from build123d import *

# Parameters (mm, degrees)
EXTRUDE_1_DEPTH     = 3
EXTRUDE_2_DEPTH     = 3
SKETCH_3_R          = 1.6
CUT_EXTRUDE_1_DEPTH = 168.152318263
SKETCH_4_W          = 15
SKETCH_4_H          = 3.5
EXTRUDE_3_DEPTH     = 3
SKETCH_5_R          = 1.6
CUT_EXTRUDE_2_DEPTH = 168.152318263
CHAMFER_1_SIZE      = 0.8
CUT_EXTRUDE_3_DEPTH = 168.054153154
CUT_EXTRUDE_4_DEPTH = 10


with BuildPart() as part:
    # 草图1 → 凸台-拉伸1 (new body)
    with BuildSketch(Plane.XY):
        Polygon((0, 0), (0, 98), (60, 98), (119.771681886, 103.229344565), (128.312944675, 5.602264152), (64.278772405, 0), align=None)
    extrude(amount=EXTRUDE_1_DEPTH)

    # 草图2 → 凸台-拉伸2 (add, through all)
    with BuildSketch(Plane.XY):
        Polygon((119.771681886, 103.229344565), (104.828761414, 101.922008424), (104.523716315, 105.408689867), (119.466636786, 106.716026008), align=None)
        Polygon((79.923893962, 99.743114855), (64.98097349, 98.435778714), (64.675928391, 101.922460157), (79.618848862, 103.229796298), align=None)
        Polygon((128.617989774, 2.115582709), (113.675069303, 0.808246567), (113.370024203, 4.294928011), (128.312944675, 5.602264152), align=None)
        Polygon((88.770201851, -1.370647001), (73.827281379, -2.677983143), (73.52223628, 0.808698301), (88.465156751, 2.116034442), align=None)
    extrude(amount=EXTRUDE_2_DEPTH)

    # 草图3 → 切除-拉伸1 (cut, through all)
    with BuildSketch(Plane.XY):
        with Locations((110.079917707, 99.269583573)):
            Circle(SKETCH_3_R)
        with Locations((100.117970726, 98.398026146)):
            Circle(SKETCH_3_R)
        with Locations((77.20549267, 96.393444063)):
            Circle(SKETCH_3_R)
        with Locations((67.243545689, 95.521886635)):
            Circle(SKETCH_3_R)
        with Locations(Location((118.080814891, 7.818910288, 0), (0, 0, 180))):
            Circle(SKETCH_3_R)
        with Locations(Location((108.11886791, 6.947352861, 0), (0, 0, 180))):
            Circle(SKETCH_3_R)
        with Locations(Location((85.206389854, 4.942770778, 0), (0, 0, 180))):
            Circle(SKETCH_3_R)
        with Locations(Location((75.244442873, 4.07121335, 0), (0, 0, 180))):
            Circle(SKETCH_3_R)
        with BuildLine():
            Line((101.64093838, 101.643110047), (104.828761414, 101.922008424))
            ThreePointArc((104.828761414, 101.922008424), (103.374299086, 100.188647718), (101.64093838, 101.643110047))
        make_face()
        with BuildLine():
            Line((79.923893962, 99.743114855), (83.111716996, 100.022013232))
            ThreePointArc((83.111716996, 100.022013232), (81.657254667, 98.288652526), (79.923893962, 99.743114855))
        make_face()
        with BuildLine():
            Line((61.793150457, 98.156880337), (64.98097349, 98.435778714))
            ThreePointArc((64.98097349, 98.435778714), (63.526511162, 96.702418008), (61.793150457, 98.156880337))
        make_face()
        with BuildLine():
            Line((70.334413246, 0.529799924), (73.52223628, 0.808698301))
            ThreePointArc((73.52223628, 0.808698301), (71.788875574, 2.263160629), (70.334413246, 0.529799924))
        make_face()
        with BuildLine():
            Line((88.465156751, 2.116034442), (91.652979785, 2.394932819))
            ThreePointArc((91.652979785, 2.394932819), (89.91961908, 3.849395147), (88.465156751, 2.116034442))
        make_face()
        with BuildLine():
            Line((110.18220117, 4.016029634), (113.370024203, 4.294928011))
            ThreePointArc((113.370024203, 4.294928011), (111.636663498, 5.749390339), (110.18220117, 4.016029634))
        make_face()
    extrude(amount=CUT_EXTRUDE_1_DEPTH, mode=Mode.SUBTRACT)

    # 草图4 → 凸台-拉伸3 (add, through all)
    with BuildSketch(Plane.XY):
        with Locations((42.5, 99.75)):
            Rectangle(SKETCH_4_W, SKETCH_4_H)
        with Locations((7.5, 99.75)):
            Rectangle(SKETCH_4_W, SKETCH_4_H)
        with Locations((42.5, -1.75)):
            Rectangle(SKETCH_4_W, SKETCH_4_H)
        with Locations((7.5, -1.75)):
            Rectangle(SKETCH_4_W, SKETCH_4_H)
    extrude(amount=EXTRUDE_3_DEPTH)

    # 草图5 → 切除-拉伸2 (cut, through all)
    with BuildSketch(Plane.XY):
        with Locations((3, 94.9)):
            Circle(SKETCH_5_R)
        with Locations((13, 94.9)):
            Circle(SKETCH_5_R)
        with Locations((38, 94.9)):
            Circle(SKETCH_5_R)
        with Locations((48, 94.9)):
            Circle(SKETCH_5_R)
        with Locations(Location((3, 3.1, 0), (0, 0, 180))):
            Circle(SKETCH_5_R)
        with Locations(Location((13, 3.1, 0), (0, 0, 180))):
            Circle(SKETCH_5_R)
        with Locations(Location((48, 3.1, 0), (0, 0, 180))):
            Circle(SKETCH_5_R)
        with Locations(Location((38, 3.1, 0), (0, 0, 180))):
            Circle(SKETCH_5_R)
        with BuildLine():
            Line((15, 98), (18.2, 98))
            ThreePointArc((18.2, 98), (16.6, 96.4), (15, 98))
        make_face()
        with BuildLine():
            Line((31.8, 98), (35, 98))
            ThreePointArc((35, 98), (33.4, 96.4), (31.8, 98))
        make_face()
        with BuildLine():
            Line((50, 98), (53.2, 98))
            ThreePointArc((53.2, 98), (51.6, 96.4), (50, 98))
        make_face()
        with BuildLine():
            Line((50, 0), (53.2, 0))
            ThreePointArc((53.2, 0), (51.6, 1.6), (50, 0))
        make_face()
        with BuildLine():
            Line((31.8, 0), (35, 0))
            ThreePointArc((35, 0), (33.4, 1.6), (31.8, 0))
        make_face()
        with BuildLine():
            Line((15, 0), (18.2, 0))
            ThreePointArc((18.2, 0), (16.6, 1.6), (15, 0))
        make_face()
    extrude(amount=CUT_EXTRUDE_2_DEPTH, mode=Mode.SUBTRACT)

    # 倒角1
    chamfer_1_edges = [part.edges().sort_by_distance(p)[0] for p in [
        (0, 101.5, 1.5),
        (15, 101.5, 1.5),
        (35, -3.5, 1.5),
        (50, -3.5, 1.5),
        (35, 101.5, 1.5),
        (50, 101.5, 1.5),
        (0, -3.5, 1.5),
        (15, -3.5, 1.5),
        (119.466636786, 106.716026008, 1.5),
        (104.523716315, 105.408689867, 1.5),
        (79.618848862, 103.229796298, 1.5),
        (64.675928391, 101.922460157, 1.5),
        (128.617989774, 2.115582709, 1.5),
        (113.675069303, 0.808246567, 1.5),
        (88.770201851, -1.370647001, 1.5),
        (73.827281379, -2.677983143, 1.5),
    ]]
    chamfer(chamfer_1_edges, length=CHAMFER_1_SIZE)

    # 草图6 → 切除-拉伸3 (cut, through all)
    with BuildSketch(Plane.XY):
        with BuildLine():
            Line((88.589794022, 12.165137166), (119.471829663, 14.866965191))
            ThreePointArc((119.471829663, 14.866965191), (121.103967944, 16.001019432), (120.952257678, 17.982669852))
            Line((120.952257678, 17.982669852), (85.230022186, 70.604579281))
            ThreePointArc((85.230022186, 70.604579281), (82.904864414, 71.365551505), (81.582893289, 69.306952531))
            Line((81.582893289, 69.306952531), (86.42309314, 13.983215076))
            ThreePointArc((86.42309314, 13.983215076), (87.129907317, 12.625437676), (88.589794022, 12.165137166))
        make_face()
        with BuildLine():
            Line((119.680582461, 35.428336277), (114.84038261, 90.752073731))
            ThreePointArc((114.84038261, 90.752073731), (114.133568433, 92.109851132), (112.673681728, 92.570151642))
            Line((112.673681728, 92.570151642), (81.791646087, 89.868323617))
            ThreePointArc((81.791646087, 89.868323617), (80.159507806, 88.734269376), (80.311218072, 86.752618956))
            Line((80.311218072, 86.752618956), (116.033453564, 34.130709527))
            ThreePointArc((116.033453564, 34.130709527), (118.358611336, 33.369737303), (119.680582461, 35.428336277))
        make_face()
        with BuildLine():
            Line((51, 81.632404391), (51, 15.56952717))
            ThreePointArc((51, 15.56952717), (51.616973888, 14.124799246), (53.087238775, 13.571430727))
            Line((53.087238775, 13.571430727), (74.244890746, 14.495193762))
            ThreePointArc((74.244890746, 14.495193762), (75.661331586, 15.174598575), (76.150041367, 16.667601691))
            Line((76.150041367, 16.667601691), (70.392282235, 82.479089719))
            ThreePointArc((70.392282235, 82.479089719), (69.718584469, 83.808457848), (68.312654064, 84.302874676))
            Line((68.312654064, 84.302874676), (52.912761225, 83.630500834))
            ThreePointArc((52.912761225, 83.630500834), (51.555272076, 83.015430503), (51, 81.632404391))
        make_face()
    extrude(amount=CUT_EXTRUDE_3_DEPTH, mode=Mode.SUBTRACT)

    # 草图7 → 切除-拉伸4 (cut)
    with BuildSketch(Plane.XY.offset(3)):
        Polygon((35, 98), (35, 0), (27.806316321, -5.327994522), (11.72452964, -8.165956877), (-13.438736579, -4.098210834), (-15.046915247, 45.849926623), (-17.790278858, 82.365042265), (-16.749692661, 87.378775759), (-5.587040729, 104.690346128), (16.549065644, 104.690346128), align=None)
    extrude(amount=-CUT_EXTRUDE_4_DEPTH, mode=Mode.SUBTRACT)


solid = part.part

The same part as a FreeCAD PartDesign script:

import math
import FreeCAD as App
import Part
import Sketcher

V = App.Vector
Q = App.Units.Quantity


def edges_at(feature, points):
    """Names of the edges that pass closest to the given points."""
    edges = feature.Shape.Edges
    near = lambda p: min(range(len(edges)), key=lambda i: edges[i].distToShape(Part.Vertex(*p))[0])
    return sorted({f"Edge{near(p) + 1}" for p in points})

doc = App.newDocument("Part")
body = doc.addObject("PartDesign::Body", "Body")

# Sketch on XY plane
sketch1 = body.newObject("Sketcher::SketchObject", "Sketch")
sketch1.AttachmentSupport = (doc.getObject("XY_Plane"), [""])
sketch1.MapMode = "FlatFace"
sketch1.addGeometry([
    Part.LineSegment(V(0, 98, 0), V(0, 0, 0)),  # 0
    Part.LineSegment(V(0, 0, 0), V(64, 0, 0)),  # 1
    Part.LineSegment(V(64, 0, 0), V(128, 6, 0)),  # 2
    Part.LineSegment(V(128, 6, 0), V(120, 103, 0)),  # 3
    Part.LineSegment(V(120, 103, 0), V(60, 98, 0)),  # 4
    Part.LineSegment(V(60, 98, 0), V(0, 98, 0)),  # 5
], False)
sketch1.addConstraint([
    Sketcher.Constraint("Coincident", 0, 2, 1, 1),
    Sketcher.Constraint("Coincident", 1, 2, 2, 1),
    Sketcher.Constraint("Coincident", 2, 2, 3, 1),
    Sketcher.Constraint("Coincident", 3, 2, 4, 1),
    Sketcher.Constraint("Coincident", 4, 2, 5, 1),
    Sketcher.Constraint("Coincident", 5, 2, 0, 1),
    Sketcher.Constraint("Vertical", 0),
    Sketcher.Constraint("Horizontal", 1),
    Sketcher.Constraint("Horizontal", 5),
    Sketcher.Constraint("Coincident", 0, 2, -1, 1),
    Sketcher.Constraint("Perpendicular", 2, 3),
    Sketcher.Constraint("Perpendicular", 3, 4),
    Sketcher.Constraint("DistanceX", 5, 2, 5, 1, 60.0),
    Sketcher.Constraint("DistanceY", 0, 2, 0, 1, 98.0),
    Sketcher.Constraint("Angle", 2, Q("5 deg")),
    Sketcher.Constraint("Distance", 3, 98.0),
    Sketcher.Constraint("Distance", 4, 60.0),
])
pad1 = body.newObject("PartDesign::Pad", "Pad")
pad1.Profile = sketch1
pad1.Length = 3

# Sketch on XY plane
sketch2 = body.newObject("Sketcher::SketchObject", "Sketch001")
sketch2.AttachmentSupport = (doc.getObject("XY_Plane"), [""])
sketch2.MapMode = "FlatFace"
sketch2.addGeometry([
    Part.LineSegment(V(104.8, 101.9, 0), V(119.8, 103.2, 0)),  # 0
    Part.LineSegment(V(119.8, 103.2, 0), V(119.5, 106.7, 0)),  # 1
    Part.LineSegment(V(119.5, 106.7, 0), V(104.5, 105.4, 0)),  # 2
    Part.LineSegment(V(104.5, 105.4, 0), V(104.8, 101.9, 0)),  # 3
    Part.LineSegment(V(65, 98.4, 0), V(79.9, 99.7, 0)),  # 4
    Part.LineSegment(V(79.9, 99.7, 0), V(79.6, 103.2, 0)),  # 5
    Part.LineSegment(V(79.6, 103.2, 0), V(64.7, 101.9, 0)),  # 6
    Part.LineSegment(V(64.7, 101.9, 0), V(65, 98.4, 0)),  # 7
    Part.LineSegment(V(113.7, 0.8, 0), V(128.6, 2.1, 0)),  # 8
    Part.LineSegment(V(128.6, 2.1, 0), V(128.3, 5.6, 0)),  # 9
    Part.LineSegment(V(128.3, 5.6, 0), V(113.4, 4.3, 0)),  # 10
    Part.LineSegment(V(113.4, 4.3, 0), V(113.7, 0.8, 0)),  # 11
    Part.LineSegment(V(73.8, -2.7, 0), V(88.8, -1.4, 0)),  # 12
    Part.LineSegment(V(88.8, -1.4, 0), V(88.5, 2.1, 0)),  # 13
    Part.LineSegment(V(88.5, 2.1, 0), V(73.5, 0.8, 0)),  # 14
    Part.LineSegment(V(73.5, 0.8, 0), V(73.8, -2.7, 0)),  # 15
], False)
sketch2.addConstraint([
    Sketcher.Constraint("Coincident", 0, 2, 1, 1),
    Sketcher.Constraint("Coincident", 1, 2, 2, 1),
    Sketcher.Constraint("Coincident", 2, 2, 3, 1),
    Sketcher.Constraint("Coincident", 3, 2, 0, 1),
    Sketcher.Constraint("Coincident", 4, 2, 5, 1),
    Sketcher.Constraint("Coincident", 5, 2, 6, 1),
    Sketcher.Constraint("Coincident", 6, 2, 7, 1),
    Sketcher.Constraint("Coincident", 7, 2, 4, 1),
    Sketcher.Constraint("Coincident", 8, 2, 9, 1),
    Sketcher.Constraint("Coincident", 9, 2, 10, 1),
    Sketcher.Constraint("Coincident", 10, 2, 11, 1),
    Sketcher.Constraint("Coincident", 11, 2, 8, 1),
    Sketcher.Constraint("Coincident", 12, 2, 13, 1),
    Sketcher.Constraint("Coincident", 13, 2, 14, 1),
    Sketcher.Constraint("Coincident", 14, 2, 15, 1),
    Sketcher.Constraint("Coincident", 15, 2, 12, 1),
    Sketcher.Constraint("Perpendicular", 0, 1),
    Sketcher.Constraint("Perpendicular", 1, 2),
    Sketcher.Constraint("Perpendicular", 2, 3),
    Sketcher.Constraint("Perpendicular", 3, 4),
    Sketcher.Constraint("Perpendicular", 4, 5),
    Sketcher.Constraint("Perpendicular", 5, 6),
    Sketcher.Constraint("Perpendicular", 6, 7),
    Sketcher.Constraint("Perpendicular", 7, 8),
    Sketcher.Constraint("Perpendicular", 8, 9),
    Sketcher.Constraint("Perpendicular", 9, 10),
    Sketcher.Constraint("Perpendicular", 10, 11),
    Sketcher.Constraint("Perpendicular", 11, 12),
    Sketcher.Constraint("Perpendicular", 12, 13),
    Sketcher.Constraint("Perpendicular", 13, 14),
    Sketcher.Constraint("Perpendicular", 14, 15),
    Sketcher.Constraint("Equal", 2, 4),
    Sketcher.Constraint("Equal", 3, 5),
    Sketcher.Constraint("Equal", 6, 8),
    Sketcher.Constraint("Equal", 7, 9),
    Sketcher.Constraint("Equal", 10, 12),
    Sketcher.Constraint("Equal", 11, 13),
    Sketcher.Constraint("Angle", 0, Q("5 deg")),
    Sketcher.Constraint("Distance", 0, 15.0),
    Sketcher.Constraint("Distance", 1, 3.5),
    Sketcher.Constraint("DistanceX", -1, 1, 12, 2, 88.770202),
    Sketcher.Constraint("DistanceY", -1, 1, 14, 2, 0.808698),
    Sketcher.Constraint("DistanceX", -1, 1, 0, 2, 119.771682),
    Sketcher.Constraint("DistanceY", -1, 1, 2, 2, 105.40869),
    Sketcher.Constraint("DistanceX", -1, 1, 5, 2, 79.618849),
    Sketcher.Constraint("DistanceY", -1, 1, 6, 2, 101.92246),
    Sketcher.Constraint("DistanceX", -1, 1, 8, 2, 128.61799),
    Sketcher.Constraint("DistanceY", -1, 1, 10, 2, 4.294928),
])
pad2 = body.newObject("PartDesign::Pad", "Pad001")
pad2.Profile = sketch2
pad2.Type = "UpToLast"

# Sketch on XY plane
sketch3 = body.newObject("Sketcher::SketchObject", "Sketch002")
sketch3.AttachmentSupport = (doc.getObject("XY_Plane"), [""])
sketch3.MapMode = "FlatFace"
sketch3.addGeometry([
    Part.Circle(V(110.1, 99.3, 0), V(0, 0, 1), 1.6),  # 0
    Part.Circle(V(100.1, 98.4, 0), V(0, 0, 1), 1.6),  # 1
    Part.Circle(V(77.2, 96.4, 0), V(0, 0, 1), 1.6),  # 2
    Part.Circle(V(67.2, 95.5, 0), V(0, 0, 1), 1.6),  # 3
    Part.Circle(V(118.1, 7.8, 0), V(0, 0, 1), 1.6),  # 4
    Part.Circle(V(108.1, 6.9, 0), V(0, 0, 1), 1.6),  # 5
    Part.Circle(V(85.2, 4.9, 0), V(0, 0, 1), 1.6),  # 6
    Part.Circle(V(75.2, 4.1, 0), V(0, 0, 1), 1.6),  # 7
    Part.LineSegment(V(104.8, 101.9, 0), V(101.6, 101.6, 0)),  # 8
    Part.ArcOfCircle(Part.Circle(V(103.2, 101.8, 0), V(0, 0, 1), 1.6), math.radians(-175), math.radians(5)),  # 9
    Part.LineSegment(V(83.1, 100, 0), V(79.9, 99.7, 0)),  # 10
    Part.ArcOfCircle(Part.Circle(V(81.5, 99.9, 0), V(0, 0, 1), 1.6), math.radians(-175), math.radians(5)),  # 11
    Part.LineSegment(V(65, 98.4, 0), V(61.8, 98.2, 0)),  # 12
    Part.ArcOfCircle(Part.Circle(V(63.4, 98.3, 0), V(0, 0, 1), 1.6), math.radians(-175), math.radians(5)),  # 13
    Part.LineSegment(V(70.3, 0.5, 0), V(73.5, 0.8, 0)),  # 14
    Part.ArcOfCircle(Part.Circle(V(71.9, 0.7, 0), V(0, 0, 1), 1.6), math.radians(5), math.radians(185)),  # 15
    Part.LineSegment(V(88.5, 2.1, 0), V(91.7, 2.4, 0)),  # 16
    Part.ArcOfCircle(Part.Circle(V(90.1, 2.3, 0), V(0, 0, 1), 1.6), math.radians(5), math.radians(185)),  # 17
    Part.LineSegment(V(110.2, 4, 0), V(113.4, 4.3, 0)),  # 18
    Part.ArcOfCircle(Part.Circle(V(111.8, 4.2, 0), V(0, 0, 1), 1.6), math.radians(5), math.radians(185)),  # 19
], False)
sketch3.addConstraint([
    Sketcher.Constraint("Coincident", 8, 1, 9, 2),
    Sketcher.Constraint("Coincident", 9, 1, 8, 2),
    Sketcher.Constraint("Coincident", 10, 1, 11, 2),
    Sketcher.Constraint("Coincident", 11, 1, 10, 2),
    Sketcher.Constraint("Coincident", 12, 1, 13, 2),
    Sketcher.Constraint("Coincident", 13, 1, 12, 2),
    Sketcher.Constraint("Coincident", 14, 1, 15, 2),
    Sketcher.Constraint("Coincident", 15, 1, 14, 2),
    Sketcher.Constraint("Coincident", 16, 1, 17, 2),
    Sketcher.Constraint("Coincident", 17, 1, 16, 2),
    Sketcher.Constraint("Coincident", 18, 1, 19, 2),
    Sketcher.Constraint("Coincident", 19, 1, 18, 2),
    Sketcher.Constraint("Equal", 0, 1),
    Sketcher.Constraint("Equal", 1, 2),
    Sketcher.Constraint("Equal", 2, 3),
    Sketcher.Constraint("Equal", 3, 4),
    Sketcher.Constraint("Equal", 4, 5),
    Sketcher.Constraint("Equal", 5, 6),
    Sketcher.Constraint("Equal", 6, 7),
    Sketcher.Constraint("Equal", 7, 9),
    Sketcher.Constraint("Equal", 9, 11),
    Sketcher.Constraint("Equal", 11, 13),
    Sketcher.Constraint("Equal", 13, 15),
    Sketcher.Constraint("Equal", 15, 17),
    Sketcher.Constraint("Equal", 17, 19),
    Sketcher.Constraint("Parallel", 8, 10),
    Sketcher.Constraint("Parallel", 10, 12),
    Sketcher.Constraint("Parallel", 12, 14),
    Sketcher.Constraint("Parallel", 14, 16),
    Sketcher.Constraint("Parallel", 16, 18),
    Sketcher.Constraint("Diameter", 0, 3.2),
    Sketcher.Constraint("Angle", 8, Q("-175 deg")),
    Sketcher.Constraint("DistanceY", -1, 1, 14, 1, 0.5298),
    Sketcher.Constraint("DistanceX", -1, 1, 18, 1, 110.182201),
    Sketcher.Constraint("DistanceX", 17, 3, 5, 3, 18.0598),
    Sketcher.Constraint("DistanceX", 2, 3, 11, 1, 2.718401),
    Sketcher.Constraint("DistanceX", -1, 1, 1, 3, 100.117971),
    Sketcher.Constraint("DistanceY", -1, 1, 4, 3, 7.81891),
    Sketcher.Constraint("DistanceX", -1, 1, 6, 3, 85.20639),
    Sketcher.Constraint("DistanceY", -1, 1, 6, 3, 4.942771),
    Sketcher.Constraint("DistanceX", -1, 1, 9, 3, 103.23485),
    Sketcher.Constraint("DistanceY", -1, 1, 9, 3, 101.782559),
    Sketcher.Constraint("DistanceX", -1, 1, 13, 3, 63.387062),
    Sketcher.Constraint("DistanceY", -1, 1, 13, 3, 98.29633),
    Sketcher.Constraint("DistanceY", -1, 1, 15, 3, 0.669249),
    Sketcher.Constraint("DistanceX", -1, 1, 17, 3, 90.059068),
    Sketcher.Constraint("DistanceY", -1, 1, 19, 3, 4.155479),
    Sketcher.Constraint("DistanceX", -1, 1, 8, 1, 104.828761),
    Sketcher.Constraint("DistanceY", -1, 1, 12, 1, 98.435779),
    Sketcher.Constraint("DistanceX", -1, 1, 17, 1, 91.65298),
    Sketcher.Constraint("DistanceY", -1, 1, 18, 1, 4.01603),
    Sketcher.Constraint("DistanceX", 2, 3, 1, 3, 22.912478),
    Sketcher.Constraint("DistanceY", 2, 3, 0, 3, 2.87614),
    Sketcher.Constraint("DistanceY", 3, 3, 1, 3, 2.87614),
    Sketcher.Constraint("DistanceX", 3, 3, 4, 3, 50.837269),
    Sketcher.Constraint("DistanceX", 5, 3, 0, 3, 1.96105),
    Sketcher.Constraint("DistanceY", 5, 3, 0, 3, 92.322231),
    Sketcher.Constraint("DistanceY", 7, 3, 5, 3, 2.87614),
    Sketcher.Constraint("DistanceX", 7, 3, 2, 3, 1.96105),
    Sketcher.Constraint("DistanceY", 2, 3, 11, 3, 3.48912),
    Sketcher.Constraint("DistanceX", 3, 3, 11, 3, 14.27426),
    Sketcher.Constraint("DistanceX", 15, 3, 7, 3, 3.316118),
    Sketcher.Constraint("DistanceX", 15, 3, 4, 3, 46.15249),
    Sketcher.Constraint("DistanceY", 17, 3, 7, 3, 1.81573),
    Sketcher.Constraint("DistanceY", 3, 3, 11, 1, 4.221228),
    Sketcher.Constraint("DistanceY", -1, 1, 0, 3, 99.269584),
])
pocket1 = body.newObject("PartDesign::Pocket", "Pocket")
pocket1.Profile = sketch3
pocket1.Type = "ThroughAll"
pocket1.Reversed = True

# Sketch on XY plane
sketch4 = body.newObject("Sketcher::SketchObject", "Sketch003")
sketch4.AttachmentSupport = (doc.getObject("XY_Plane"), [""])
sketch4.MapMode = "FlatFace"
sketch4.addGeometry([
    Part.LineSegment(V(35, 101.5, 0), V(35, 98, 0)),  # 0
    Part.LineSegment(V(35, 98, 0), V(50, 98, 0)),  # 1
    Part.LineSegment(V(50, 98, 0), V(50, 101.5, 0)),  # 2
    Part.LineSegment(V(50, 101.5, 0), V(35, 101.5, 0)),  # 3
    Part.LineSegment(V(0, 101.5, 0), V(0, 98, 0)),  # 4
    Part.LineSegment(V(0, 98, 0), V(15, 98, 0)),  # 5
    Part.LineSegment(V(15, 98, 0), V(15, 101.5, 0)),  # 6
    Part.LineSegment(V(15, 101.5, 0), V(0, 101.5, 0)),  # 7
    Part.LineSegment(V(35, 0, 0), V(35, -3.5, 0)),  # 8
    Part.LineSegment(V(35, -3.5, 0), V(50, -3.5, 0)),  # 9
    Part.LineSegment(V(50, -3.5, 0), V(50, 0, 0)),  # 10
    Part.LineSegment(V(50, 0, 0), V(35, 0, 0)),  # 11
    Part.LineSegment(V(0, 0, 0), V(0, -3.5, 0)),  # 12
    Part.LineSegment(V(0, -3.5, 0), V(15, -3.5, 0)),  # 13
    Part.LineSegment(V(15, -3.5, 0), V(15, 0, 0)),  # 14
    Part.LineSegment(V(15, 0, 0), V(0, 0, 0)),  # 15
], False)
sketch4.addConstraint([
    Sketcher.Constraint("Coincident", 0, 2, 1, 1),
    Sketcher.Constraint("Coincident", 1, 2, 2, 1),
    Sketcher.Constraint("Coincident", 2, 2, 3, 1),
    Sketcher.Constraint("Coincident", 3, 2, 0, 1),
    Sketcher.Constraint("Coincident", 4, 2, 5, 1),
    Sketcher.Constraint("Coincident", 5, 2, 6, 1),
    Sketcher.Constraint("Coincident", 6, 2, 7, 1),
    Sketcher.Constraint("Coincident", 7, 2, 4, 1),
    Sketcher.Constraint("Coincident", 8, 2, 9, 1),
    Sketcher.Constraint("Coincident", 9, 2, 10, 1),
    Sketcher.Constraint("Coincident", 10, 2, 11, 1),
    Sketcher.Constraint("Coincident", 11, 2, 8, 1),
    Sketcher.Constraint("Coincident", 12, 2, 13, 1),
    Sketcher.Constraint("Coincident", 13, 2, 14, 1),
    Sketcher.Constraint("Coincident", 14, 2, 15, 1),
    Sketcher.Constraint("Coincident", 15, 2, 12, 1),
    Sketcher.Constraint("Vertical", 0),
    Sketcher.Constraint("Horizontal", 1),
    Sketcher.Constraint("Vertical", 2),
    Sketcher.Constraint("Horizontal", 3),
    Sketcher.Constraint("Vertical", 4),
    Sketcher.Constraint("Horizontal", 5),
    Sketcher.Constraint("Vertical", 6),
    Sketcher.Constraint("Horizontal", 7),
    Sketcher.Constraint("Vertical", 8),
    Sketcher.Constraint("Horizontal", 9),
    Sketcher.Constraint("Vertical", 10),
    Sketcher.Constraint("Horizontal", 11),
    Sketcher.Constraint("Vertical", 12),
    Sketcher.Constraint("Horizontal", 13),
    Sketcher.Constraint("Vertical", 14),
    Sketcher.Constraint("Horizontal", 15),
    Sketcher.Constraint("Coincident", 15, 2, -1, 1),
    Sketcher.Constraint("PointOnObject", 4, 2, -2),
    Sketcher.Constraint("PointOnObject", 10, 2, -1),
    Sketcher.Constraint("Horizontal", 1, 2, 4, 2),
    Sketcher.Constraint("Horizontal", 3, 2, 6, 2),
    Sketcher.Constraint("Horizontal", 9, 2, 12, 2),
    Sketcher.Constraint("Vertical", 3, 2, 8, 2),
    Sketcher.Constraint("Vertical", 2, 2, 9, 2),
    Sketcher.Constraint("Vertical", 6, 2, 13, 2),
    Sketcher.Constraint("Equal", 3, 5),
    Sketcher.Constraint("Equal", 6, 8),
    Sketcher.Constraint("DistanceX", 1, 1, 1, 2, 15.0),
    Sketcher.Constraint("DistanceY", 0, 2, 0, 1, 3.5),
    Sketcher.Constraint("DistanceX", -1, 1, 0, 2, 35.0),
    Sketcher.Constraint("DistanceY", -1, 1, 0, 2, 98.0),
])
pad3 = body.newObject("PartDesign::Pad", "Pad002")
pad3.Profile = sketch4
pad3.Type = "UpToLast"

# Sketch on XY plane
sketch5 = body.newObject("Sketcher::SketchObject", "Sketch004")
sketch5.AttachmentSupport = (doc.getObject("XY_Plane"), [""])
sketch5.MapMode = "FlatFace"
sketch5.addGeometry([
    Part.Circle(V(3, 94.9, 0), V(0, 0, 1), 1.6),  # 0
    Part.Circle(V(13, 94.9, 0), V(0, 0, 1), 1.6),  # 1
    Part.Circle(V(38, 94.9, 0), V(0, 0, 1), 1.6),  # 2
    Part.Circle(V(48, 94.9, 0), V(0, 0, 1), 1.6),  # 3
    Part.Circle(V(3, 3.1, 0), V(0, 0, 1), 1.6),  # 4
    Part.Circle(V(13, 3.1, 0), V(0, 0, 1), 1.6),  # 5
    Part.Circle(V(48, 3.1, 0), V(0, 0, 1), 1.6),  # 6
    Part.Circle(V(38, 3.1, 0), V(0, 0, 1), 1.6),  # 7
    Part.LineSegment(V(18.2, 98, 0), V(15, 98, 0)),  # 8
    Part.ArcOfCircle(Part.Circle(V(16.6, 98, 0), V(0, 0, 1), 1.6), math.radians(180), math.radians(360)),  # 9
    Part.LineSegment(V(35, 98, 0), V(31.8, 98, 0)),  # 10
    Part.ArcOfCircle(Part.Circle(V(33.4, 98, 0), V(0, 0, 1), 1.6), math.radians(180), math.radians(360)),  # 11
    Part.LineSegment(V(53.2, 98, 0), V(50, 98, 0)),  # 12
    Part.ArcOfCircle(Part.Circle(V(51.6, 98, 0), V(0, 0, 1), 1.6), math.radians(180), math.radians(360)),  # 13
    Part.LineSegment(V(50, 0, 0), V(53.2, 0, 0)),  # 14
    Part.ArcOfCircle(Part.Circle(V(51.6, 0, 0), V(0, 0, 1), 1.6), math.radians(0), math.radians(180)),  # 15
    Part.LineSegment(V(31.8, 0, 0), V(35, 0, 0)),  # 16
    Part.ArcOfCircle(Part.Circle(V(33.4, 0, 0), V(0, 0, 1), 1.6), math.radians(0), math.radians(180)),  # 17
    Part.LineSegment(V(15, 0, 0), V(18.2, 0, 0)),  # 18
    Part.ArcOfCircle(Part.Circle(V(16.6, 0, 0), V(0, 0, 1), 1.6), math.radians(0), math.radians(180)),  # 19
], False)
sketch5.addConstraint([
    Sketcher.Constraint("Coincident", 8, 1, 9, 2),
    Sketcher.Constraint("Coincident", 9, 1, 8, 2),
    Sketcher.Constraint("Coincident", 10, 1, 11, 2),
    Sketcher.Constraint("Coincident", 11, 1, 10, 2),
    Sketcher.Constraint("Coincident", 12, 1, 13, 2),
    Sketcher.Constraint("Coincident", 13, 1, 12, 2),
    Sketcher.Constraint("Coincident", 14, 1, 15, 2),
    Sketcher.Constraint("Coincident", 15, 1, 14, 2),
    Sketcher.Constraint("Coincident", 16, 1, 17, 2),
    Sketcher.Constraint("Coincident", 17, 1, 16, 2),
    Sketcher.Constraint("Coincident", 18, 1, 19, 2),
    Sketcher.Constraint("Coincident", 19, 1, 18, 2),
    Sketcher.Constraint("Horizontal", 8),
    Sketcher.Constraint("Horizontal", 10),
    Sketcher.Constraint("Horizontal", 12),
    Sketcher.Constraint("Horizontal", 14),
    Sketcher.Constraint("Horizontal", 16),
    Sketcher.Constraint("Horizontal", 18),
    Sketcher.Constraint("Equal", 0, 1),
    Sketcher.Constraint("Equal", 1, 2),
    Sketcher.Constraint("Equal", 2, 3),
    Sketcher.Constraint("Equal", 3, 4),
    Sketcher.Constraint("Equal", 4, 5),
    Sketcher.Constraint("Equal", 5, 6),
    Sketcher.Constraint("Equal", 6, 7),
    Sketcher.Constraint("Equal", 7, 9),
    Sketcher.Constraint("Equal", 9, 11),
    Sketcher.Constraint("Equal", 11, 13),
    Sketcher.Constraint("Equal", 13, 15),
    Sketcher.Constraint("Equal", 15, 17),
    Sketcher.Constraint("Equal", 17, 19),
    Sketcher.Constraint("PointOnObject", 15, 3, -1),
    Sketcher.Constraint("PointOnObject", 17, 3, -1),
    Sketcher.Constraint("PointOnObject", 19, 3, -1),
    Sketcher.Constraint("PointOnObject", 14, 1, -1),
    Sketcher.Constraint("PointOnObject", 16, 1, -1),
    Sketcher.Constraint("PointOnObject", 18, 1, -1),
    Sketcher.Constraint("Horizontal", 0, 3, 1, 3),
    Sketcher.Constraint("Horizontal", 1, 3, 2, 3),
    Sketcher.Constraint("Horizontal", 2, 3, 3, 3),
    Sketcher.Constraint("Horizontal", 4, 3, 5, 3),
    Sketcher.Constraint("Horizontal", 5, 3, 6, 3),
    Sketcher.Constraint("Horizontal", 6, 3, 7, 3),
    Sketcher.Constraint("Horizontal", 9, 3, 11, 3),
    Sketcher.Constraint("Horizontal", 11, 3, 13, 3),
    Sketcher.Constraint("Horizontal", 13, 3, 8, 1),
    Sketcher.Constraint("Horizontal", 9, 1, 10, 1),
    Sketcher.Constraint("Horizontal", 11, 1, 12, 1),
    Sketcher.Constraint("Vertical", 0, 3, 4, 3),
    Sketcher.Constraint("Vertical", 1, 3, 5, 3),
    Sketcher.Constraint("Vertical", 3, 3, 6, 3),
    Sketcher.Constraint("Vertical", 2, 3, 7, 3),
    Sketcher.Constraint("Vertical", 13, 3, 15, 3),
    Sketcher.Constraint("Vertical", 11, 3, 17, 3),
    Sketcher.Constraint("Vertical", 9, 3, 19, 3),
    Sketcher.Constraint("Diameter", 0, 3.2),
    Sketcher.Constraint("DistanceX", -1, 1, 0, 3, 3.0),
    Sketcher.Constraint("DistanceX", -1, 1, 1, 3, 13.0),
    Sketcher.Constraint("DistanceX", -1, 1, 2, 3, 38.0),
    Sketcher.Constraint("DistanceX", -1, 1, 3, 3, 48.0),
    Sketcher.Constraint("DistanceY", -1, 1, 9, 3, 98.0),
    Sketcher.Constraint("DistanceX", -1, 1, 9, 1, 15.0),
    Sketcher.Constraint("DistanceX", -1, 1, 10, 1, 35.0),
    Sketcher.Constraint("DistanceX", -1, 1, 13, 1, 50.0),
    Sketcher.Constraint("DistanceY", -1, 1, 0, 3, 94.9),
    Sketcher.Constraint("DistanceY", -1, 1, 4, 3, 3.1),
])
pocket2 = body.newObject("PartDesign::Pocket", "Pocket001")
pocket2.Profile = sketch5
pocket2.Type = "ThroughAll"
pocket2.Reversed = True
doc.recompute()

chamfer = body.newObject("PartDesign::Chamfer", "Chamfer")
chamfer.Base = (pocket2, edges_at(pocket2, [
    (0, 101.5, 1.5),
    (15, 101.5, 1.5),
    (35, -3.5, 1.5),
    (50, -3.5, 1.5),
    (35, 101.5, 1.5),
    (50, 101.5, 1.5),
    (0, -3.5, 1.5),
    (15, -3.5, 1.5),
    (119.467, 106.716, 1.5),
    (104.524, 105.409, 1.5),
    (79.619, 103.23, 1.5),
    (64.676, 101.922, 1.5),
    (128.618, 2.116, 1.5),
    (113.675, 0.808, 1.5),
    (88.77, -1.371, 1.5),
    (73.827, -2.678, 1.5),
]))
chamfer.Size = 0.8

# Sketch on XY plane
sketch6 = body.newObject("Sketcher::SketchObject", "Sketch005")
sketch6.AttachmentSupport = (doc.getObject("XY_Plane"), [""])
sketch6.MapMode = "FlatFace"
sketch6.addGeometry([
    Part.LineSegment(V(88.6, 12.2, 0), V(119.5, 14.9, 0)),  # 0
    Part.ArcOfCircle(Part.Circle(V(119.3, 16.9, 0), V(0, 0, 1), 2), math.radians(-85), math.radians(34)),  # 1
    Part.LineSegment(V(121, 18, 0), V(85.2, 70.6, 0)),  # 2
    Part.ArcOfCircle(Part.Circle(V(83.6, 69.5, 0), V(0, 0, 1), 2), math.radians(34), math.radians(185)),  # 3
    Part.LineSegment(V(81.6, 69.3, 0), V(86.4, 14, 0)),  # 4
    Part.ArcOfCircle(Part.Circle(V(88.4, 14.2, 0), V(0, 0, 1), 2), math.radians(-175), math.radians(-85)),  # 5
    Part.LineSegment(V(119.7, 35.4, 0), V(114.8, 90.8, 0)),  # 6
    Part.ArcOfCircle(Part.Circle(V(112.8, 90.6, 0), V(0, 0, 1), 2), math.radians(5), math.radians(95)),  # 7
    Part.LineSegment(V(112.7, 92.6, 0), V(81.8, 89.9, 0)),  # 8
    Part.ArcOfCircle(Part.Circle(V(82, 87.9, 0), V(0, 0, 1), 2), math.radians(95), math.radians(214)),  # 9
    Part.LineSegment(V(80.3, 86.8, 0), V(116, 34.1, 0)),  # 10
    Part.ArcOfCircle(Part.Circle(V(117.7, 35.3, 0), V(0, 0, 1), 2), math.radians(-146), math.radians(5)),  # 11
    Part.LineSegment(V(51, 81.6, 0), V(51, 15.6, 0)),  # 12
    Part.ArcOfCircle(Part.Circle(V(53, 15.6, 0), V(0, 0, 1), 2), math.radians(180), math.radians(273)),  # 13
    Part.LineSegment(V(53.1, 13.6, 0), V(74.2, 14.5, 0)),  # 14
    Part.ArcOfCircle(Part.Circle(V(74.2, 16.5, 0), V(0, 0, 1), 2), math.radians(-87), math.radians(5)),  # 15
    Part.LineSegment(V(76.2, 16.7, 0), V(70.4, 82.5, 0)),  # 16
    Part.ArcOfCircle(Part.Circle(V(68.4, 82.3, 0), V(0, 0, 1), 2), math.radians(5), math.radians(93)),  # 17
    Part.LineSegment(V(68.3, 84.3, 0), V(52.9, 83.6, 0)),  # 18
    Part.ArcOfCircle(Part.Circle(V(53, 81.6, 0), V(0, 0, 1), 2), math.radians(92), math.radians(180)),  # 19
], False)
sketch6.addConstraint([
    Sketcher.Constraint("Tangent", 0, 2, 1, 1),
    Sketcher.Constraint("Tangent", 1, 2, 2, 1),
    Sketcher.Constraint("Tangent", 2, 2, 3, 1),
    Sketcher.Constraint("Tangent", 3, 2, 4, 1),
    Sketcher.Constraint("Tangent", 4, 2, 5, 1),
    Sketcher.Constraint("Tangent", 5, 2, 0, 1),
    Sketcher.Constraint("Tangent", 6, 2, 7, 1),
    Sketcher.Constraint("Tangent", 7, 2, 8, 1),
    Sketcher.Constraint("Tangent", 8, 2, 9, 1),
    Sketcher.Constraint("Tangent", 9, 2, 10, 1),
    Sketcher.Constraint("Tangent", 10, 2, 11, 1),
    Sketcher.Constraint("Tangent", 11, 2, 6, 1),
    Sketcher.Constraint("Tangent", 12, 2, 13, 1),
    Sketcher.Constraint("Tangent", 13, 2, 14, 1),
    Sketcher.Constraint("Tangent", 14, 2, 15, 1),
    Sketcher.Constraint("Tangent", 15, 2, 16, 1),
    Sketcher.Constraint("Tangent", 16, 2, 17, 1),
    Sketcher.Constraint("Tangent", 17, 2, 18, 1),
    Sketcher.Constraint("Tangent", 18, 2, 19, 1),
    Sketcher.Constraint("Tangent", 19, 2, 12, 1),
    Sketcher.Constraint("Vertical", 12),
    Sketcher.Constraint("Equal", 1, 3),
    Sketcher.Constraint("Equal", 3, 5),
    Sketcher.Constraint("Equal", 5, 7),
    Sketcher.Constraint("Equal", 7, 9),
    Sketcher.Constraint("Equal", 9, 11),
    Sketcher.Constraint("Equal", 11, 13),
    Sketcher.Constraint("Equal", 13, 15),
    Sketcher.Constraint("Equal", 15, 17),
    Sketcher.Constraint("Equal", 17, 19),
    Sketcher.Constraint("Perpendicular", 0, 4),
    Sketcher.Constraint("Parallel", 4, 6),
    Sketcher.Constraint("Perpendicular", 6, 8),
    Sketcher.Constraint("Parallel", 2, 10),
    Sketcher.Constraint("Perpendicular", 8, 16),
    Sketcher.Constraint("Parallel", 14, 18),
    Sketcher.Constraint("Equal", 4, 6),
    Sketcher.Constraint("Radius", 1, 2.0),
    Sketcher.Constraint("Angle", 0, Q("5 deg")),
    Sketcher.Constraint("Distance", 0, 31.0),
    Sketcher.Constraint("DistanceX", -1, 1, 13, 3, 53.0),
    Sketcher.Constraint("Angle", 14, Q("2.5 deg")),
    Sketcher.Constraint("DistanceY", 5, 3, 13, 3, 1.412001),
    Sketcher.Constraint("DistanceX", 17, 3, 3, 2, 13.183),
    Sketcher.Constraint("DistanceY", -1, 1, 15, 2, 16.667602),
    Sketcher.Constraint("DistanceY", -1, 1, 18, 2, 83.630501),
    Sketcher.Constraint("DistanceX", 3, 3, 5, 3, 4.8402),
    Sketcher.Constraint("DistanceY", 3, 3, 7, 3, 21.096498),
    Sketcher.Constraint("DistanceX", 17, 3, 7, 3, 44.4481),
    Sketcher.Constraint("DistanceY", 2, 2, 17, 3, 11.700199),
])
pocket3 = body.newObject("PartDesign::Pocket", "Pocket002")
pocket3.Profile = sketch6
pocket3.Type = "ThroughAll"
pocket3.Reversed = True

# Sketch on XY plane
sketch7 = body.newObject("Sketcher::SketchObject", "Sketch006")
sketch7.AttachmentSupport = (doc.getObject("XY_Plane"), [""])
sketch7.MapMode = "FlatFace"
sketch7.AttachmentOffset = App.Placement(V(0, 0, 3), App.Rotation())
sketch7.addGeometry([
    Part.LineSegment(V(35, 0, 0), V(35, 98, 0)),  # 0
    Part.LineSegment(V(35, 98, 0), V(17, 105, 0)),  # 1
    Part.LineSegment(V(17, 105, 0), V(-6, 105, 0)),  # 2
    Part.LineSegment(V(-6, 105, 0), V(-17, 87, 0)),  # 3
    Part.LineSegment(V(-17, 87, 0), V(-18, 82, 0)),  # 4
    Part.LineSegment(V(-18, 82, 0), V(-15, 46, 0)),  # 5
    Part.LineSegment(V(-15, 46, 0), V(-13, -4, 0)),  # 6
    Part.LineSegment(V(-13, -4, 0), V(12, -8, 0)),  # 7
    Part.LineSegment(V(12, -8, 0), V(28, -5, 0)),  # 8
    Part.LineSegment(V(28, -5, 0), V(35, 0, 0)),  # 9
], False)
sketch7.addConstraint([
    Sketcher.Constraint("Coincident", 0, 2, 1, 1),
    Sketcher.Constraint("Coincident", 1, 2, 2, 1),
    Sketcher.Constraint("Coincident", 2, 2, 3, 1),
    Sketcher.Constraint("Coincident", 3, 2, 4, 1),
    Sketcher.Constraint("Coincident", 4, 2, 5, 1),
    Sketcher.Constraint("Coincident", 5, 2, 6, 1),
    Sketcher.Constraint("Coincident", 6, 2, 7, 1),
    Sketcher.Constraint("Coincident", 7, 2, 8, 1),
    Sketcher.Constraint("Coincident", 8, 2, 9, 1),
    Sketcher.Constraint("Coincident", 9, 2, 0, 1),
    Sketcher.Constraint("Vertical", 0),
    Sketcher.Constraint("Horizontal", 2),
    Sketcher.Constraint("PointOnObject", 9, 2, -1),
    Sketcher.Constraint("DistanceY", 0, 1, 0, 2, 98.0),
    Sketcher.Constraint("DistanceX", -1, 1, 0, 2, 35.0),
    Sketcher.Constraint("DistanceY", 7, 2, 4, 2, 90.530999),
    Sketcher.Constraint("Distance", 3, 20.598429),
    Sketcher.Constraint("Distance", 4, 5.12058),
    Sketcher.Constraint("Distance", 6, 49.97402),
    Sketcher.Constraint("Distance", 7, 25.48993),
    Sketcher.Constraint("DistanceX", 2, 2, 2, 1, 22.136106),
    Sketcher.Constraint("DistanceX", 2, 2, -1, 1, 5.587041),
    Sketcher.Constraint("DistanceX", 4, 2, -1, 1, 17.790279),
    Sketcher.Constraint("DistanceY", 6, 2, -1, 1, 4.098211),
    Sketcher.Constraint("DistanceX", -1, 1, 7, 2, 11.72453),
    Sketcher.Constraint("DistanceX", 3, 2, 2, 2, 11.162652),
    Sketcher.Constraint("DistanceY", 5, 2, 3, 2, 41.528849),
    Sketcher.Constraint("DistanceX", 5, 2, 1, 2, 31.595981),
    Sketcher.Constraint("DistanceX", 5, 2, 8, 2, 42.853232),
    Sketcher.Constraint("DistanceY", 8, 2, 5, 2, 51.177921),
])
pocket4 = body.newObject("PartDesign::Pocket", "Pocket003")
pocket4.Profile = sketch7
pocket4.Length = 10

doc.recompute()
